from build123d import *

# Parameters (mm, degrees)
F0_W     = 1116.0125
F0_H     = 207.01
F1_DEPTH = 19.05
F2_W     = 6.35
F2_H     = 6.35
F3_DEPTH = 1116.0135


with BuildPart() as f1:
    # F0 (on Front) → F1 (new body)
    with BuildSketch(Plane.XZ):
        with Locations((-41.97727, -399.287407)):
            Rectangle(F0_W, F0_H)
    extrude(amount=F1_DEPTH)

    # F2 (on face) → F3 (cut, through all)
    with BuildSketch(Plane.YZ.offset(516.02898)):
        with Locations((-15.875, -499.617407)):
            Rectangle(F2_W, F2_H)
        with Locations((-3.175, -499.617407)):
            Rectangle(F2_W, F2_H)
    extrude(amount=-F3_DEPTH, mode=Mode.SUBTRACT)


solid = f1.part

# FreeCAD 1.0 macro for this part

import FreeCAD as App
import Part
import Sketcher

V = App.Vector
Q = App.Units.Quantity

doc = App.newDocument("Part")
body = doc.addObject("PartDesign::Body", "Body")

sketch1 = body.newObject("Sketcher::SketchObject", "Sketch")
sketch1.AttachmentSupport = (doc.getObject("XZ_Plane"), [""])
sketch1.MapMode = "FlatFace"
sketch1.addGeometry(Part.LineSegment(V(-600, -296, 0), V(-600, -503, 0)), False)
sketch1.addGeometry(Part.LineSegment(V(-600, -503, 0), V(516, -503, 0)), False)
sketch1.addGeometry(Part.LineSegment(V(516, -503, 0), V(516, -296, 0)), False)
sketch1.addGeometry(Part.LineSegment(V(516, -296, 0), V(-600, -296, 0)), False)
sketch1.addConstraint(Sketcher.Constraint("Coincident", 0, 2, 1, 1))
sketch1.addConstraint(Sketcher.Constraint("Coincident", 1, 2, 2, 1))
sketch1.addConstraint(Sketcher.Constraint("Coincident", 2, 2, 3, 1))
sketch1.addConstraint(Sketcher.Constraint("Coincident", 3, 2, 0, 1))
sketch1.addConstraint(Sketcher.Constraint("Vertical", 0))
sketch1.addConstraint(Sketcher.Constraint("Horizontal", 1))
sketch1.addConstraint(Sketcher.Constraint("Vertical", 2))
sketch1.addConstraint(Sketcher.Constraint("Horizontal", 3))
sketch1.addConstraint(Sketcher.Constraint("DistanceY", 0, 2, 0, 1, Q("8.15 in")))
sketch1.addConstraint(Sketcher.Constraint("DistanceX", 1, 1, 1, 2, Q("43.9375 in")))
sketch1.addConstraint(Sketcher.Constraint("DistanceX", 0, 2, -1, 1, Q("599.98352 mm")))
sketch1.addConstraint(Sketcher.Constraint("DistanceY", 0, 2, -1, 1, Q("502.792407 mm")))
pad1 = body.newObject("PartDesign::Pad", "Pad")
pad1.Profile = sketch1
pad1.Length = Q("0.75 in")

sketch2 = body.newObject("Sketcher::SketchObject", "Sketch001")
sketch2.AttachmentSupport = (doc.getObject("YZ_Plane"), [""])
sketch2.MapMode = "FlatFace"
sketch2.AttachmentOffset = App.Placement(V(0, 0, 516.02898), App.Rotation())
sketch2.addGeometry(Part.LineSegment(V(-19, -496, 0), V(-19, -503, 0)), False)
sketch2.addGeometry(Part.LineSegment(V(-19, -503, 0), V(-13, -503, 0)), False)
sketch2.addGeometry(Part.LineSegment(V(-13, -503, 0), V(-13, -496, 0)), False)
sketch2.addGeometry(Part.LineSegment(V(-13, -496, 0), V(-19, -496, 0)), False)
sketch2.addGeometry(Part.LineSegment(V(-6, -496, 0), V(-6, -503, 0)), False)
sketch2.addGeometry(Part.LineSegment(V(-6, -503, 0), V(0, -503, 0)), False)
sketch2.addGeometry(Part.LineSegment(V(0, -503, 0), V(0, -496, 0)), False)
sketch2.addGeometry(Part.LineSegment(V(0, -496, 0), V(-6, -496, 0)), False)
sketch2.addConstraint(Sketcher.Constraint("Coincident", 0, 2, 1, 1))
sketch2.addConstraint(Sketcher.Constraint("Coincident", 1, 2, 2, 1))
sketch2.addConstraint(Sketcher.Constraint("Coincident", 2, 2, 3, 1))
sketch2.addConstraint(Sketcher.Constraint("Coincident", 3, 2, 0, 1))
sketch2.addConstraint(Sketcher.Constraint("Coincident", 4, 2, 5, 1))
sketch2.addConstraint(Sketcher.Constraint("Coincident", 5, 2, 6, 1))
sketch2.addConstraint(Sketcher.Constraint("Coincident", 6, 2, 7, 1))
sketch2.addConstraint(Sketcher.Constraint("Coincident", 7, 2, 4, 1))
sketch2.addConstraint(Sketcher.Constraint("Vertical", 0))
sketch2.addConstraint(Sketcher.Constraint("Horizontal", 1))
sketch2.addConstraint(Sketcher.Constraint("Vertical", 2))
sketch2.addConstraint(Sketcher.Constraint("Horizontal", 3))
sketch2.addConstraint(Sketcher.Constraint("Vertical", 4))
sketch2.addConstraint(Sketcher.Constraint("Horizontal", 5))
sketch2.addConstraint(Sketcher.Constraint("Vertical", 6))
sketch2.addConstraint(Sketcher.Constraint("Horizontal", 7))
sketch2.addConstraint(Sketcher.Constraint("PointOnObject", 5, 2, -2))
sketch2.addConstraint(Sketcher.Constraint("Horizontal", 1, 2, 4, 2))
sketch2.addConstraint(Sketcher.Constraint("Horizontal", 3, 2, 6, 2))
sketch2.addConstraint(Sketcher.Constraint("Equal", 3, 5))
sketch2.addConstraint(Sketcher.Constraint("Equal", 7, 0))
sketch2.addConstraint(Sketcher.Constraint("DistanceX", 1, 1, 1, 2, Q("0.25 in")))
sketch2.addConstraint(Sketcher.Constraint("DistanceX", 1, 2, -1, 1, Q("0.5 in")))
sketch2.addConstraint(Sketcher.Constraint("DistanceY", 0, 2, -1, 1, Q("502.792407 mm")))
pocket1 = body.newObject("PartDesign::Pocket", "Pocket")
pocket1.Profile = sketch2
pocket1.Type = "ThroughAll"

doc.recompute()
